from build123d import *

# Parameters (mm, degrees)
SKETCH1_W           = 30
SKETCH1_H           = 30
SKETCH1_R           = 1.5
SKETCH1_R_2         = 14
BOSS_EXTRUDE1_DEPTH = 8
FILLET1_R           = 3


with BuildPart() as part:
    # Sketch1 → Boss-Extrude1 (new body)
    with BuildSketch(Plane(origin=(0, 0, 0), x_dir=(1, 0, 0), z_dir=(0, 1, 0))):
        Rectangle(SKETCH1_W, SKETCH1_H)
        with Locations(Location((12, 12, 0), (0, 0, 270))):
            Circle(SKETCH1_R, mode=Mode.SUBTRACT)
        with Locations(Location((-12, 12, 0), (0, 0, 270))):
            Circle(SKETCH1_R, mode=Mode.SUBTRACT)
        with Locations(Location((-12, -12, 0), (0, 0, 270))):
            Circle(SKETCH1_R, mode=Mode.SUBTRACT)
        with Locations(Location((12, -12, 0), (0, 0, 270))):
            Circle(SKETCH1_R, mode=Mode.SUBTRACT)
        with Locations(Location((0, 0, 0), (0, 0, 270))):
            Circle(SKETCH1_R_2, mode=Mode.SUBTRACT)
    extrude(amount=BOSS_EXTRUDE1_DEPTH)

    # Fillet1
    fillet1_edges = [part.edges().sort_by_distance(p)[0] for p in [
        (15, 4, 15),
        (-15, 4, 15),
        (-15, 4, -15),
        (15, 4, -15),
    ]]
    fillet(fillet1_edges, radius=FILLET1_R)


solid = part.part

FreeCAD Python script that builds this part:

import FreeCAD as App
import Part
import Sketcher

V = App.Vector
Q = App.Units.Quantity


def edges_at(feature, points):
    """Names of the edges that pass closest to the given points."""
    edges = feature.Shape.Edges
    near = lambda p: min(range(len(edges)), key=lambda i: edges[i].distToShape(Part.Vertex(*p))[0])
    return sorted({f"Edge{near(p) + 1}" for p in points})

doc = App.newDocument("Part")
body = doc.addObject("PartDesign::Body", "Body")

# Sketch on XZ plane
sketch1 = body.newObject("Sketcher::SketchObject", "Sketch")
sketch1.AttachmentSupport = (doc.getObject("XZ_Plane"), [""])
sketch1.MapMode = "FlatFace"
sketch1.addGeometry([
    Part.LineSegment(V(-15, -15, 0), V(-15, 15, 0)),  # 0
    Part.LineSegment(V(-15, 15, 0), V(15, 15, 0)),  # 1
    Part.LineSegment(V(15, 15, 0), V(15, -15, 0)),  # 2
    Part.LineSegment(V(15, -15, 0), V(-15, -15, 0)),  # 3
    Part.Circle(V(-12, 12, 0), V(0, 0, 1), 1.5),  # 4
    Part.Circle(V(12, 12, 0), V(0, 0, 1), 1.5),  # 5
    Part.Circle(V(-12, -12, 0), V(0, 0, 1), 1.5),  # 6
    Part.Circle(V(0, 0, 0), V(0, 0, 1), 14),  # 7
    Part.Circle(V(12, -12, 0), V(0, 0, 1), 1.5),  # 8
], False)
sketch1.addConstraint([
    Sketcher.Constraint("Coincident", 0, 2, 1, 1),
    Sketcher.Constraint("Coincident", 1, 2, 2, 1),
    Sketcher.Constraint("Coincident", 2, 2, 3, 1),
    Sketcher.Constraint("Coincident", 3, 2, 0, 1),
    Sketcher.Constraint("Vertical", 0),
    Sketcher.Constraint("Horizontal", 1),
    Sketcher.Constraint("Vertical", 2),
    Sketcher.Constraint("Horizontal", 3),
    Sketcher.Constraint("Coincident", 7, 3, -1, 1),
    Sketcher.Constraint("Equal", 4, 5),
    Sketcher.Constraint("Equal", 5, 6),
    Sketcher.Constraint("Equal", 6, 8),
    Sketcher.Constraint("Symmetric", 5, 3, 6, 3, -1, 1),
    Sketcher.Constraint("Symmetric", 4, 3, 8, 3, -1, 1),
    Sketcher.Constraint("Symmetric", 0, 2, 2, 2, -1, 1),
    Sketcher.Constraint("Symmetric", 4, 3, 5, 3, -2),
    Sketcher.Constraint("Equal", 3, 0),
    Sketcher.Constraint("Diameter", 4, Q("3 mm")),
    Sketcher.Constraint("Diameter", 7, Q("28 mm")),
    Sketcher.Constraint("DistanceX", 1, 1, 1, 2, Q("30 mm")),
    Sketcher.Constraint("DistanceX", 4, 3, -1, 1, Q("12 mm")),
    Sketcher.Constraint("DistanceY", -1, 1, 4, 3, Q("12 mm")),
])
pad1 = body.newObject("PartDesign::Pad", "Pad")
pad1.Profile = sketch1
pad1.Length = 8
pad1.Reversed = True
doc.recompute()

fillet = body.newObject("PartDesign::Fillet", "Fillet")
fillet.Base = (pad1, edges_at(pad1, [
    (15, 4, 15),
    (-15, 4, 15),
    (-15, 4, -15),
    (15, 4, -15),
]))
fillet.Radius = 3

doc.recompute()
